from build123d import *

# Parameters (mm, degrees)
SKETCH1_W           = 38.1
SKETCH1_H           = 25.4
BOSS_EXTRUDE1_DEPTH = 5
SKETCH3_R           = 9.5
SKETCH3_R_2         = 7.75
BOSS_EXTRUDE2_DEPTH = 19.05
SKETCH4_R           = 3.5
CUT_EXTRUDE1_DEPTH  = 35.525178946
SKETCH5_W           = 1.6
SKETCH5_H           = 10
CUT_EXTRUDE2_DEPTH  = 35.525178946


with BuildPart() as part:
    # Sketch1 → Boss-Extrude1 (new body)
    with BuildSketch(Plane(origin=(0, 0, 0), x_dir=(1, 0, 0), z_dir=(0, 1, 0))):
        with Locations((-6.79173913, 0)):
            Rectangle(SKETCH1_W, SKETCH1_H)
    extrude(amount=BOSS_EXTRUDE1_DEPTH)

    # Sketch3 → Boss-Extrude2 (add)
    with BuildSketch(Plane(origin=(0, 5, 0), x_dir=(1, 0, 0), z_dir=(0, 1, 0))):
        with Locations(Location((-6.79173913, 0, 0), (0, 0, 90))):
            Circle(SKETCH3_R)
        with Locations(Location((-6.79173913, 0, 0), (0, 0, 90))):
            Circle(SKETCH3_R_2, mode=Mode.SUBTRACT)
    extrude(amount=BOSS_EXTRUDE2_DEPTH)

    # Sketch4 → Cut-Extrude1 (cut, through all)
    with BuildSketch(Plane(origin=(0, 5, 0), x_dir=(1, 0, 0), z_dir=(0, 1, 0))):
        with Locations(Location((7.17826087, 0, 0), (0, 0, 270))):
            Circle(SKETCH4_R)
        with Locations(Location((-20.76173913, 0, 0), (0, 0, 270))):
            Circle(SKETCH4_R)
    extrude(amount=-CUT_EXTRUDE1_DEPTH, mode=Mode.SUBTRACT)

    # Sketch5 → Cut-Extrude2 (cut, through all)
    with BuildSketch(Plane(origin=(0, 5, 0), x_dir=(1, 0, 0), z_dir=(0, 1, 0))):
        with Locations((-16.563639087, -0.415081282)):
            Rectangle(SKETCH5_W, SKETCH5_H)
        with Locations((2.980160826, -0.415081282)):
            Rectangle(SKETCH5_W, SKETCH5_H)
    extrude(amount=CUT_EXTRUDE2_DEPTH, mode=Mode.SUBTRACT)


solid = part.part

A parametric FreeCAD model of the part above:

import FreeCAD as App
import Part
import Sketcher


def add_polygon(sketch, points):
    """Adds a closed chain of lines whose ends are joined by coincident constraints."""
    first, n = sketch.GeometryCount, len(points)
    for a, b in zip(points, points[1:] + points[:1]):
        sketch.addGeometry(Part.LineSegment(App.Vector(*a, 0), App.Vector(*b, 0)), False)
    for i in range(n):
        sketch.addConstraint(Sketcher.Constraint("Coincident", first + i, 2, first + (i + 1) % n, 1))

doc = App.newDocument("Part")
params = doc.addObject("Spreadsheet::Sheet", "Params")
for row, (alias, value) in enumerate([
    ("sketch1_width", "38.1 mm"),
    ("sketch1_height", "25.4 mm"),
    ("pad1_length", "5 mm"),
    ("sketch2_diameter", "19 mm"),
    ("sketch2_diameter2", "15.5 mm"),
    ("pad2_length", "19.05 mm"),
    ("sketch3_diameter", "7 mm"),
    ("sketch4_height", "10 mm"),
    ("sketch4_width", "1.6 mm"),
], start=1):
    params.set(f"A{row}", alias)
    params.set(f"B{row}", "=" + value)
    params.setAlias(f"B{row}", alias)

body = doc.addObject("PartDesign::Body", "Body")

# Sketch on XZ plane
sketch1 = body.newObject("Sketcher::SketchObject", "Sketch")
sketch1.AttachmentSupport = (doc.getObject("XZ_Plane"), [""])
sketch1.MapMode = "FlatFace"
add_polygon(sketch1, [(-26, -13), (-26, 13), (12, 13), (12, -13)])  # lines 0-3
sketch1.addConstraint(Sketcher.Constraint("Vertical", 0))
sketch1.addConstraint(Sketcher.Constraint("Horizontal", 1))
sketch1.addConstraint(Sketcher.Constraint("Vertical", 2))
sketch1.addConstraint(Sketcher.Constraint("Horizontal", 3))
sketch1.addConstraint(Sketcher.Constraint("DistanceX", 1, 1, 1, 2, 38.1))
sketch1.addConstraint(Sketcher.Constraint("DistanceY", 0, 1, 0, 2, 25.4))
sketch1.addConstraint(Sketcher.Constraint("DistanceY", -1, 1, 0, 2, 12.7))
sketch1.addConstraint(Sketcher.Constraint("DistanceX", 0, 2, -1, 1, 25.841739))
sketch1.setExpression("Constraints[8]", "Params.sketch1_width")
sketch1.setExpression("Constraints[9]", "Params.sketch1_height")
pad1 = body.newObject("PartDesign::Pad", "Pad")
pad1.Profile = sketch1
pad1.setExpression("Length", "Params.pad1_length")
pad1.Reversed = True

# Sketch on XZ plane
sketch2 = body.newObject("Sketcher::SketchObject", "Sketch001")
sketch2.AttachmentSupport = (doc.getObject("XZ_Plane"), [""])
sketch2.MapMode = "FlatFace"
sketch2.AttachmentOffset = App.Placement(App.Vector(0, 0, -5), App.Rotation())
sketch2.addGeometry(Part.Circle(App.Vector(-7, 0, 0), App.Vector(0, 0, 1), 10), False)
sketch2.addGeometry(Part.Circle(App.Vector(-7, 0, 0), App.Vector(0, 0, 1), 8), False)
sketch2.addConstraint(Sketcher.Constraint("Coincident", 1, 3, 0, 3))
sketch2.addConstraint(Sketcher.Constraint("PointOnObject", 0, 3, -1))
sketch2.addConstraint(Sketcher.Constraint("Diameter", 0, 19.0))
sketch2.addConstraint(Sketcher.Constraint("Diameter", 1, 15.5))
sketch2.addConstraint(Sketcher.Constraint("DistanceX", 0, 3, -1, 1, 6.791739))
sketch2.setExpression("Constraints[2]", "Params.sketch2_diameter")
sketch2.setExpression("Constraints[3]", "Params.sketch2_diameter2")
pad2 = body.newObject("PartDesign::Pad", "Pad001")
pad2.Profile = sketch2
pad2.setExpression("Length", "Params.pad2_length")
pad2.Reversed = True

# Sketch on XZ plane
sketch3 = body.newObject("Sketcher::SketchObject", "Sketch002")
sketch3.AttachmentSupport = (doc.getObject("XZ_Plane"), [""])
sketch3.MapMode = "FlatFace"
sketch3.AttachmentOffset = App.Placement(App.Vector(0, 0, -5), App.Rotation())
sketch3.addGeometry(Part.Circle(App.Vector(7.2, 0, 0), App.Vector(0, 0, 1), 3.5), False)
sketch3.addGeometry(Part.Circle(App.Vector(-20.8, 0, 0), App.Vector(0, 0, 1), 3.5), False)
sketch3.addConstraint(Sketcher.Constraint("Equal", 0, 1))
sketch3.addConstraint(Sketcher.Constraint("PointOnObject", 0, 3, -1))
sketch3.addConstraint(Sketcher.Constraint("PointOnObject", 1, 3, -1))
sketch3.addConstraint(Sketcher.Constraint("Diameter", 0, 7.0))
sketch3.addConstraint(Sketcher.Constraint("DistanceX", 1, 3, 0, 3, 27.94))
sketch3.addConstraint(Sketcher.Constraint("DistanceX", -1, 1, 0, 3, 7.178261))
sketch3.setExpression("Constraints[3]", "Params.sketch3_diameter")
pocket1 = body.newObject("PartDesign::Pocket", "Pocket")
pocket1.Profile = sketch3
pocket1.Type = "ThroughAll"
pocket1.Reversed = True

# Sketch on XZ plane
sketch4 = body.newObject("Sketcher::SketchObject", "Sketch003")
sketch4.AttachmentSupport = (doc.getObject("XZ_Plane"), [""])
sketch4.MapMode = "FlatFace"
sketch4.AttachmentOffset = App.Placement(App.Vector(0, 0, -5), App.Rotation())
add_polygon(sketch4, [(-17.4, -4.6), (-17.4, 5.4), (-15.8, 5.4), (-15.8, -4.6)])  # lines 0-3
add_polygon(sketch4, [(2.2, -4.6), (2.2, 5.4), (3.8, 5.4), (3.8, -4.6)])  # lines 4-7
sketch4.addConstraint(Sketcher.Constraint("Vertical", 0))
sketch4.addConstraint(Sketcher.Constraint("Horizontal", 1))
sketch4.addConstraint(Sketcher.Constraint("Vertical", 2))
sketch4.addConstraint(Sketcher.Constraint("Horizontal", 3))
sketch4.addConstraint(Sketcher.Constraint("Vertical", 4))
sketch4.addConstraint(Sketcher.Constraint("Horizontal", 5))
sketch4.addConstraint(Sketcher.Constraint("Vertical", 6))
sketch4.addConstraint(Sketcher.Constraint("Horizontal", 7))
sketch4.addConstraint(Sketcher.Constraint("Horizontal", 1, 2, 4, 2))
sketch4.addConstraint(Sketcher.Constraint("Horizontal", 3, 2, 6, 2))
sketch4.addConstraint(Sketcher.Constraint("Equal", 3, 5))
sketch4.addConstraint(Sketcher.Constraint("DistanceY", 0, 1, 0, 2, 10.0))
sketch4.addConstraint(Sketcher.Constraint("DistanceX", 1, 1, 1, 2, 1.6))
sketch4.addConstraint(Sketcher.Constraint("DistanceX", 1, 2, 4, 2, 17.9438))
sketch4.addConstraint(Sketcher.Constraint("DistanceX", 0, 2, -1, 1, 17.363639))
sketch4.addConstraint(Sketcher.Constraint("DistanceY", -1, 1, 0, 2, 5.415081))
sketch4.setExpression("Constraints[19]", "Params.sketch4_height")
sketch4.setExpression("Constraints[20]", "Params.sketch4_width")
pocket2 = body.newObject("PartDesign::Pocket", "Pocket001")
pocket2.Profile = sketch4
pocket2.Type = "ThroughAll"

doc.recompute()
